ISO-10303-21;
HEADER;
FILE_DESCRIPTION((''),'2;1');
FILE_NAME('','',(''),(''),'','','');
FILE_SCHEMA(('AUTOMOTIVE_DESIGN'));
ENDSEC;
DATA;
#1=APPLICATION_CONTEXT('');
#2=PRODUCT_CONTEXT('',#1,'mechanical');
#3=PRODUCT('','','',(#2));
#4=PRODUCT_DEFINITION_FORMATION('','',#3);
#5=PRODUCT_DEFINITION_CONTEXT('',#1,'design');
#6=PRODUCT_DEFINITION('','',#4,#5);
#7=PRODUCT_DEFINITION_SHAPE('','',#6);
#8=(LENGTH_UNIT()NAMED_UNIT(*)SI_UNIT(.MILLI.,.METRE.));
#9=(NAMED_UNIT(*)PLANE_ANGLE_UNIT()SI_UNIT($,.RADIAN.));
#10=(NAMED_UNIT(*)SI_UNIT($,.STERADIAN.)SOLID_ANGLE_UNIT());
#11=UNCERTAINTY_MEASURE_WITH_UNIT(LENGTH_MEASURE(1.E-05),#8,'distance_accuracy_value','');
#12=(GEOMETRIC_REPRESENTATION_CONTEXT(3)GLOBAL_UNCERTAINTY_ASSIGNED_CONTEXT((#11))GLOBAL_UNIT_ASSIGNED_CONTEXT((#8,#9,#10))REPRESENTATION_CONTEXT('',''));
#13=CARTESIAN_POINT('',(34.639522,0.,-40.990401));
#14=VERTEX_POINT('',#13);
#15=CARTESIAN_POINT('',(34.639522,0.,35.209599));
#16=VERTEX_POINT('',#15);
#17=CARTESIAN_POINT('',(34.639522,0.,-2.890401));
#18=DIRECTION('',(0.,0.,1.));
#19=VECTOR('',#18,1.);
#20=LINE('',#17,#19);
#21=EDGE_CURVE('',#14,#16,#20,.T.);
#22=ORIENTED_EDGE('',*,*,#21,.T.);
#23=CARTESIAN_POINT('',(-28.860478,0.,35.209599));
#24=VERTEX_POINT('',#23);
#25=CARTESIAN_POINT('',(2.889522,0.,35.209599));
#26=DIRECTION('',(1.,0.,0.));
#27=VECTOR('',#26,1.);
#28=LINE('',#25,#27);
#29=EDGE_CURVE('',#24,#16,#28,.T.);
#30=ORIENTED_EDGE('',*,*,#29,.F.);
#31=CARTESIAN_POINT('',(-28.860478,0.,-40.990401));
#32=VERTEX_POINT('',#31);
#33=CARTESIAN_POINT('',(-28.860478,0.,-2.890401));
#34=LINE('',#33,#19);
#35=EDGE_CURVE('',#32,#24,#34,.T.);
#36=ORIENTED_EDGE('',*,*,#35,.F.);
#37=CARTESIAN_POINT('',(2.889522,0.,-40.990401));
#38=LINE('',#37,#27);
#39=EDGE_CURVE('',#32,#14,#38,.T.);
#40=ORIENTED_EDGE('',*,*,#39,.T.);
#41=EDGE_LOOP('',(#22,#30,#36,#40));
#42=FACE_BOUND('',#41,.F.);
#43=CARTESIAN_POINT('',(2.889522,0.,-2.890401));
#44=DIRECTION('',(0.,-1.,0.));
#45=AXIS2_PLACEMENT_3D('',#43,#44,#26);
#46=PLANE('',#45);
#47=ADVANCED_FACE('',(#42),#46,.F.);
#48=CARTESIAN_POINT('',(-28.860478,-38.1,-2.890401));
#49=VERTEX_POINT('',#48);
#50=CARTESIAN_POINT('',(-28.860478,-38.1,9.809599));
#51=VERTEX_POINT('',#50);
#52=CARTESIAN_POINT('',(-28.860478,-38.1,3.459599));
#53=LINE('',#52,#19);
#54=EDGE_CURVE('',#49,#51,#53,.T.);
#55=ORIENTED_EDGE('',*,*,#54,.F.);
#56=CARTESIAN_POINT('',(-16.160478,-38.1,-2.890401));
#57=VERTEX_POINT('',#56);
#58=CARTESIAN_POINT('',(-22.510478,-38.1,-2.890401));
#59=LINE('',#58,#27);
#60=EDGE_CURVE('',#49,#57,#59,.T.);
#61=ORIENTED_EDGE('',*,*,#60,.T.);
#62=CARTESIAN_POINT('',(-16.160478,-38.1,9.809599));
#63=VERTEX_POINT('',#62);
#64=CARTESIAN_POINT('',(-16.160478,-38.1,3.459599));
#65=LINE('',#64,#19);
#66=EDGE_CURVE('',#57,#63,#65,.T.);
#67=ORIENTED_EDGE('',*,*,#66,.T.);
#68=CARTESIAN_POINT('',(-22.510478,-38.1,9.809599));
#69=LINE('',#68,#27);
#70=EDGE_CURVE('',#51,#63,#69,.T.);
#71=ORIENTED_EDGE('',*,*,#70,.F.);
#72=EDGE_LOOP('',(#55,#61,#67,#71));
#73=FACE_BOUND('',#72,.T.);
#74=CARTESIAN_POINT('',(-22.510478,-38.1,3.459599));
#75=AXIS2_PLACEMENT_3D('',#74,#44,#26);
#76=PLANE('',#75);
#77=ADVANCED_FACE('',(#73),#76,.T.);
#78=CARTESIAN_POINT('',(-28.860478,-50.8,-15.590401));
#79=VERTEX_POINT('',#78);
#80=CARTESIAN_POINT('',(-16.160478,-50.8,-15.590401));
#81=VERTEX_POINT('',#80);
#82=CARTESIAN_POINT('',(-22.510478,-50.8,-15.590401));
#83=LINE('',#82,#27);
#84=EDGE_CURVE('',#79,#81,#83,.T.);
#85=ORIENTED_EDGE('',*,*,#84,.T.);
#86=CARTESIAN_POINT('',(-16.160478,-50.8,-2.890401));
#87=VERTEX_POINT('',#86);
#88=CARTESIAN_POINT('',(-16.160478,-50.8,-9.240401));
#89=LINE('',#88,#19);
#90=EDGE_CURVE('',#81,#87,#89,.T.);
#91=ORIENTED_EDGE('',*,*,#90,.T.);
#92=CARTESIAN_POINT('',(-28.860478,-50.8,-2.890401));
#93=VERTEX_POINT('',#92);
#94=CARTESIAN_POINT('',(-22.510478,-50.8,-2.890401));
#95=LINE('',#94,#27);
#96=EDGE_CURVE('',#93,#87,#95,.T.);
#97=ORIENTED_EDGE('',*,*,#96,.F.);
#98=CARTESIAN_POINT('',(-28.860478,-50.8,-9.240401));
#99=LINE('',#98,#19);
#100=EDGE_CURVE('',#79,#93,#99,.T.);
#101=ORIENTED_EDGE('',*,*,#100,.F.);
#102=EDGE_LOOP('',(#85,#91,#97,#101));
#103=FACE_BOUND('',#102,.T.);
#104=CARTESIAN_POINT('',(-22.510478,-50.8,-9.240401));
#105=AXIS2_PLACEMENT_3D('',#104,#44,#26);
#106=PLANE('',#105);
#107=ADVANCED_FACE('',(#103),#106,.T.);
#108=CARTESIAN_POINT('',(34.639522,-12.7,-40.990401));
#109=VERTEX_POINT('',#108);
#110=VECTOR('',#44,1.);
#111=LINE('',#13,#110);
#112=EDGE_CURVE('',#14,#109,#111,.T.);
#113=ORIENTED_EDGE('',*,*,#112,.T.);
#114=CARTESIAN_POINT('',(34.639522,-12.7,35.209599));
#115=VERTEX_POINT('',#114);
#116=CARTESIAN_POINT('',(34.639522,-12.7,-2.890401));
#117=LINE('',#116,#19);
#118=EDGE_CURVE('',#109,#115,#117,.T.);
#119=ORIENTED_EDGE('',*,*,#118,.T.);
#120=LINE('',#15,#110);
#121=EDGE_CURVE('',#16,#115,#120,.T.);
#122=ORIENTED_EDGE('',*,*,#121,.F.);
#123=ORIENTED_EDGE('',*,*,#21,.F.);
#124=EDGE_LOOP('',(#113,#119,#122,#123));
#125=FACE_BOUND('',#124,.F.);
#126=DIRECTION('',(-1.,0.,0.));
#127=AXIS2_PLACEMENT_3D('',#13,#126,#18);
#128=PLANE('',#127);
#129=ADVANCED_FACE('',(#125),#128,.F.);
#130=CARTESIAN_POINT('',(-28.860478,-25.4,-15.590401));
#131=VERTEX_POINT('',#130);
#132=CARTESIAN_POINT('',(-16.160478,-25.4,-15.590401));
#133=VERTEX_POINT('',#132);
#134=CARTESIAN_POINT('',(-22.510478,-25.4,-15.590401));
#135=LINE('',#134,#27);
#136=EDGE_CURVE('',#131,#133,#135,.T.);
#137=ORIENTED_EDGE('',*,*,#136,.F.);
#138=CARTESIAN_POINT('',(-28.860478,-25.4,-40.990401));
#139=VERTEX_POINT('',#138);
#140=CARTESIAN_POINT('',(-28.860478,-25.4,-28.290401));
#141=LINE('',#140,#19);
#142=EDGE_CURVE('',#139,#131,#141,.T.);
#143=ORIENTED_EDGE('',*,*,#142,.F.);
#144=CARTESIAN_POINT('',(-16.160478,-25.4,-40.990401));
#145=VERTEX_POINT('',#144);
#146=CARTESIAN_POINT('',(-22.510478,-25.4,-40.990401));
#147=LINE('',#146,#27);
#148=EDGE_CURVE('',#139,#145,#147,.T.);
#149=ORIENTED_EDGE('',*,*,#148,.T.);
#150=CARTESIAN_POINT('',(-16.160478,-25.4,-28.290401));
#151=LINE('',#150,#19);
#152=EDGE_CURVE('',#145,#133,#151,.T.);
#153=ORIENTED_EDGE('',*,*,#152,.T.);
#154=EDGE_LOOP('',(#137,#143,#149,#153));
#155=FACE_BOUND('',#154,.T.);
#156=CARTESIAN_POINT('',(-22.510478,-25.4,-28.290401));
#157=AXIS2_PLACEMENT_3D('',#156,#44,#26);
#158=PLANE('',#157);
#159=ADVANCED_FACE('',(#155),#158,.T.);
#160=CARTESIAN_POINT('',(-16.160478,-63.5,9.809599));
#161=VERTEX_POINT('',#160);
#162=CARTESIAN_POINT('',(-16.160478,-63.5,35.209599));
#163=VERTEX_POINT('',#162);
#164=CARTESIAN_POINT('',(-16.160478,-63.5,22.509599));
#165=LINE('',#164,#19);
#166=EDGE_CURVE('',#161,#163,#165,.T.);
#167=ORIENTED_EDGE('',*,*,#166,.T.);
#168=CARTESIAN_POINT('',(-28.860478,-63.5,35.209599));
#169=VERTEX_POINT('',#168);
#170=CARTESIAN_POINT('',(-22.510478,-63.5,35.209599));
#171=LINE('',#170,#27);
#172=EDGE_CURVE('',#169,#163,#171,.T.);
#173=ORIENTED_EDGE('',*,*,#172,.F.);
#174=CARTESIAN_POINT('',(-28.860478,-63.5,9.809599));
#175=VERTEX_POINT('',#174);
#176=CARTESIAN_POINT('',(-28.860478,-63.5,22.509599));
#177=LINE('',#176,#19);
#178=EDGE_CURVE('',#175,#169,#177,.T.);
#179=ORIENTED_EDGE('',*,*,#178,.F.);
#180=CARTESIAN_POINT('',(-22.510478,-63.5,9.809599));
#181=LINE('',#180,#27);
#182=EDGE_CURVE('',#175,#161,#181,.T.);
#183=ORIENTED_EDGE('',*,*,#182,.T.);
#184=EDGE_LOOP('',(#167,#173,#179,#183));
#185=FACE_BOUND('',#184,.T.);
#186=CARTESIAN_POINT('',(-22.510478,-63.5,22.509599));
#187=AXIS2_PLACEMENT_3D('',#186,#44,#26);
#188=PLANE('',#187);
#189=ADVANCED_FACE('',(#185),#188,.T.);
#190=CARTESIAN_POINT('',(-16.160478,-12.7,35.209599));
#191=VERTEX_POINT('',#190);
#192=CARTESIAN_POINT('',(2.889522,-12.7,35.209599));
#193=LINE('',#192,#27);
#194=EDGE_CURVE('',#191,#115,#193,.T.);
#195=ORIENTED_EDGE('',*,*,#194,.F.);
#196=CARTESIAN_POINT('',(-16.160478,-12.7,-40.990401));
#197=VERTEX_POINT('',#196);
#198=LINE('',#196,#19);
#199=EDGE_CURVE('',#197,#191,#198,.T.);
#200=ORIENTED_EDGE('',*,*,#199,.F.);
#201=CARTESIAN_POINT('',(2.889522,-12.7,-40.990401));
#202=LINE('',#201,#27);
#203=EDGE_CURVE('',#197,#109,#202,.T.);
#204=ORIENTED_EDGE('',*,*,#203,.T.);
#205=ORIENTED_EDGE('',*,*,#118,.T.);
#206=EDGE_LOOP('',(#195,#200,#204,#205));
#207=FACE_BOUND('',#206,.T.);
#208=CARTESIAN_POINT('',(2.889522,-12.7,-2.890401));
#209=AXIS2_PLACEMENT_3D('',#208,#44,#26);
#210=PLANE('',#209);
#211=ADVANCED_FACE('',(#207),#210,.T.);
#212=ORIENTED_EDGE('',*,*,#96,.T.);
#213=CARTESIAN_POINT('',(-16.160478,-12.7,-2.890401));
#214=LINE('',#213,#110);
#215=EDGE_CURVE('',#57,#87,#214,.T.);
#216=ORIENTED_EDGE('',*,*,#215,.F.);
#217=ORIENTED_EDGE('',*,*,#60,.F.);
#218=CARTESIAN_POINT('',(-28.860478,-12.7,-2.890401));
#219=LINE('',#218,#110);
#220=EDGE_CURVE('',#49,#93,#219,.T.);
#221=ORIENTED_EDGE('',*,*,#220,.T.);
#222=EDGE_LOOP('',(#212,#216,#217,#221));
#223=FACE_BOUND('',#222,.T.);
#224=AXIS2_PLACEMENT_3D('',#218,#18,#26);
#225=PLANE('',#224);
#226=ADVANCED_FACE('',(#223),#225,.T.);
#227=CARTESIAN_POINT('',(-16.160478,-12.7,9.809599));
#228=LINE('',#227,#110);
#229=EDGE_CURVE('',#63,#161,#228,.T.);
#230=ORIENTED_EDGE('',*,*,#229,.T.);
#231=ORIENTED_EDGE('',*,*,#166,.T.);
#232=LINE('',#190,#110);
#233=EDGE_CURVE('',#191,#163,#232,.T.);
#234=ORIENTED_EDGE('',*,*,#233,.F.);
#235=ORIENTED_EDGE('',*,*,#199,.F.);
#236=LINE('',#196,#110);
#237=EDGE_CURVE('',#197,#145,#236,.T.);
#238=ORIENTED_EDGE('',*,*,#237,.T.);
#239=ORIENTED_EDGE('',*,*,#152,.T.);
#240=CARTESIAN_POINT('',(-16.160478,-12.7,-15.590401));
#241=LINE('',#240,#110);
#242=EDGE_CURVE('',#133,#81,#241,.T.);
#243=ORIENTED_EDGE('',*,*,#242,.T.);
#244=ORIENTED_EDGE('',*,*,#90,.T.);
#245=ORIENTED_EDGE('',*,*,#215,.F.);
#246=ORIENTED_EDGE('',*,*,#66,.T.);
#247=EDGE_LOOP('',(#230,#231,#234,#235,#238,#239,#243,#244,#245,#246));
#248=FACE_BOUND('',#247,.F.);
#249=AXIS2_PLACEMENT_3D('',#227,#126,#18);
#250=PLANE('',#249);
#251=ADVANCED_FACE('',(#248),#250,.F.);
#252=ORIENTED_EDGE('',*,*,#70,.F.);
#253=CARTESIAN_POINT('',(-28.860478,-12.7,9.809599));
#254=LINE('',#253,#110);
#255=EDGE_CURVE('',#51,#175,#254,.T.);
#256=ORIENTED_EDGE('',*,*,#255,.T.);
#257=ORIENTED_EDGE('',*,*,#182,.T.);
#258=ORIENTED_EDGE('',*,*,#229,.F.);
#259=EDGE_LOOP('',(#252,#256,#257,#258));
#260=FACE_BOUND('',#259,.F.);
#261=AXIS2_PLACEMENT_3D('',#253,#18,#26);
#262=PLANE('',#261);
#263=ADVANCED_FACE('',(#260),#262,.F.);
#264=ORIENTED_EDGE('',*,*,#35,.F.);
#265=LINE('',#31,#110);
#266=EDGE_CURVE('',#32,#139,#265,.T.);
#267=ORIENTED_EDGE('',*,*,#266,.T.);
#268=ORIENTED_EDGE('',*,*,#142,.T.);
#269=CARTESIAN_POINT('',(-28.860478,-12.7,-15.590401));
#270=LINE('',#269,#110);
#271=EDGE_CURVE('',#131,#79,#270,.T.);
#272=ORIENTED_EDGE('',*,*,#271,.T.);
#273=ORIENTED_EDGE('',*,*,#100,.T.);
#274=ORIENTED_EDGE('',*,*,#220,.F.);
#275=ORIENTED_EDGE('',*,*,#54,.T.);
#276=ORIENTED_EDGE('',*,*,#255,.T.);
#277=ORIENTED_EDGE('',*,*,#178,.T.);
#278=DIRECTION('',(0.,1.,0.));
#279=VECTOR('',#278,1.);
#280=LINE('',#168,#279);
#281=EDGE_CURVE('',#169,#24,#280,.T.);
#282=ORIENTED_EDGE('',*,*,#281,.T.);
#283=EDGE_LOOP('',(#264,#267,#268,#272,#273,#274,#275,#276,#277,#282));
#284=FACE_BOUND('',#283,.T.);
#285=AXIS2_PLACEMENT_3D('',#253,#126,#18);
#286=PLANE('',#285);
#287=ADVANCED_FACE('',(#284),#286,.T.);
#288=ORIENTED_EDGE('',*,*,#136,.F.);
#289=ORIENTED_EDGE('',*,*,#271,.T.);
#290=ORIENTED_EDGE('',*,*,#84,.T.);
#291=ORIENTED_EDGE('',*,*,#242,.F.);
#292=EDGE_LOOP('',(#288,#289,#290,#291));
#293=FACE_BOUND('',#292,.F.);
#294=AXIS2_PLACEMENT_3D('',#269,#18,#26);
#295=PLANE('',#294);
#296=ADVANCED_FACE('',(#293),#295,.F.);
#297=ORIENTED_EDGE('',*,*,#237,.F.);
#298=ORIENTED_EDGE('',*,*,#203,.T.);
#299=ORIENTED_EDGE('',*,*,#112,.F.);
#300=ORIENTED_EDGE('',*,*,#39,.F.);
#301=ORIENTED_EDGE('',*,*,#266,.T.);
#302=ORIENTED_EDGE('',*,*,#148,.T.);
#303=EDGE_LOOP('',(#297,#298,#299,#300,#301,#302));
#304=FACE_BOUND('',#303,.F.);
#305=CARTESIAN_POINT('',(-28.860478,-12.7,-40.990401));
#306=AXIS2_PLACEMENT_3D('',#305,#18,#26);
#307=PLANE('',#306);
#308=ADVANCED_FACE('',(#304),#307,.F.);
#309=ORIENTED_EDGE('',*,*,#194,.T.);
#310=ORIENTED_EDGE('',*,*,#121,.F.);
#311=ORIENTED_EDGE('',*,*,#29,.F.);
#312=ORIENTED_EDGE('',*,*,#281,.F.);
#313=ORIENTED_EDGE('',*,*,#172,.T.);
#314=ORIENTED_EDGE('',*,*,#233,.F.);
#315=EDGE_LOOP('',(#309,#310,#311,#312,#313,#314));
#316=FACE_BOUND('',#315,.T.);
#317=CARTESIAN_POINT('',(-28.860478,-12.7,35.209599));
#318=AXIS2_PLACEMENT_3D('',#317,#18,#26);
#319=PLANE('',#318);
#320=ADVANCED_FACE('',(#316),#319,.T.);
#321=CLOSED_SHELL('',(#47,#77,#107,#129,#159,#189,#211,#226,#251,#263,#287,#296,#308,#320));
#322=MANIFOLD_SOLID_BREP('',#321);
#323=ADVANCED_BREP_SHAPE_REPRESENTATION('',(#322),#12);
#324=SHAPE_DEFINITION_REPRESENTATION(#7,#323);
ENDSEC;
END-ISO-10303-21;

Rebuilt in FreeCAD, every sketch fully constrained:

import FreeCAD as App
import Part
import Sketcher

V = App.Vector
Q = App.Units.Quantity

doc = App.newDocument("Part")
body = doc.addObject("PartDesign::Body", "Body")

sketch1 = body.newObject("Sketcher::SketchObject", "Sketch")
sketch1.AttachmentSupport = (doc.getObject("XZ_Plane"), [""])
sketch1.MapMode = "FlatFace"
sketch1.addGeometry([
    Part.LineSegment(V(-29, 35, 0), V(-29, -41, 0)),
    Part.LineSegment(V(-29, -41, 0), V(35, -41, 0)),
    Part.LineSegment(V(35, -41, 0), V(35, 35, 0)),
    Part.LineSegment(V(35, 35, 0), V(-29, 35, 0)),
], False)
sketch1.addConstraint([
    Sketcher.Constraint("Coincident", 0, 2, 1, 1),
    Sketcher.Constraint("Coincident", 1, 2, 2, 1),
    Sketcher.Constraint("Coincident", 2, 2, 3, 1),
    Sketcher.Constraint("Coincident", 3, 2, 0, 1),
    Sketcher.Constraint("Vertical", 0),
    Sketcher.Constraint("Horizontal", 1),
    Sketcher.Constraint("Vertical", 2),
    Sketcher.Constraint("Horizontal", 3),
    Sketcher.Constraint("DistanceY", 0, 2, 0, 1, Q("3 in")),
    Sketcher.Constraint("DistanceX", 1, 1, 1, 2, Q("2.5 in")),
    Sketcher.Constraint("DistanceY", 0, 2, -1, 1, 40.990401),
    Sketcher.Constraint("DistanceX", 0, 2, -1, 1, 28.860478),
])
pad1 = body.newObject("PartDesign::Pad", "Pad")
pad1.Profile = sketch1
pad1.Length = Q("0.5 in")

sketch2 = body.newObject("Sketcher::SketchObject", "Sketch001")
sketch2.AttachmentSupport = (doc.getObject("XZ_Plane"), [""])
sketch2.MapMode = "FlatFace"
sketch2.AttachmentOffset = App.Placement(V(0, 0, 0.5 * 25.4), App.Rotation())
sketch2.addGeometry([
    Part.LineSegment(V(-29, -16, 0), V(-29, -41, 0)),
    Part.LineSegment(V(-29, -41, 0), V(-16, -41, 0)),
    Part.LineSegment(V(-16, -41, 0), V(-16, -16, 0)),
    Part.LineSegment(V(-16, -16, 0), V(-29, -16, 0)),
], False)
sketch2.addConstraint([
    Sketcher.Constraint("Coincident", 0, 2, 1, 1),
    Sketcher.Constraint("Coincident", 1, 2, 2, 1),
    Sketcher.Constraint("Coincident", 2, 2, 3, 1),
    Sketcher.Constraint("Coincident", 3, 2, 0, 1),
    Sketcher.Constraint("Vertical", 0),
    Sketcher.Constraint("Horizontal", 1),
    Sketcher.Constraint("Vertical", 2),
    Sketcher.Constraint("Horizontal", 3),
    Sketcher.Constraint("DistanceY", 0, 2, 0, 1, Q("1 in")),
    Sketcher.Constraint("DistanceX", 1, 1, 1, 2, Q("0.5 in")),
    Sketcher.Constraint("DistanceY", 0, 2, -1, 1, 40.990401),
    Sketcher.Constraint("DistanceX", 0, 2, -1, 1, 28.860478),
])
pad2 = body.newObject("PartDesign::Pad", "Pad001")
pad2.Profile = sketch2
pad2.Length = Q("0.5 in")

sketch3 = body.newObject("Sketcher::SketchObject", "Sketch002")
sketch3.AttachmentSupport = (doc.getObject("XZ_Plane"), [""])
sketch3.MapMode = "FlatFace"
sketch3.AttachmentOffset = App.Placement(V(0, 0, 0.5 * 25.4), App.Rotation())
sketch3.addGeometry([
    Part.LineSegment(V(-29, -3, 0), V(-29, -16, 0)),
    Part.LineSegment(V(-29, -16, 0), V(-16, -16, 0)),
    Part.LineSegment(V(-16, -16, 0), V(-16, -3, 0)),
    Part.LineSegment(V(-16, -3, 0), V(-29, -3, 0)),
], False)
sketch3.addConstraint([
    Sketcher.Constraint("Coincident", 0, 2, 1, 1),
    Sketcher.Constraint("Coincident", 1, 2, 2, 1),
    Sketcher.Constraint("Coincident", 2, 2, 3, 1),
    Sketcher.Constraint("Coincident", 3, 2, 0, 1),
    Sketcher.Constraint("Vertical", 0),
    Sketcher.Constraint("Horizontal", 1),
    Sketcher.Constraint("Vertical", 2),
    Sketcher.Constraint("Horizontal", 3),
    Sketcher.Constraint("Equal", 3, 0),
    Sketcher.Constraint("DistanceX", 1, 1, 1, 2, Q("0.5 in")),
    Sketcher.Constraint("DistanceY", 0, 2, -1, 1, 15.590401),
    Sketcher.Constraint("DistanceX", 0, 2, -1, 1, 28.860478),
])
pad3 = body.newObject("PartDesign::Pad", "Pad002")
pad3.Profile = sketch3
pad3.Length = Q("1.5 in")

sketch4 = body.newObject("Sketcher::SketchObject", "Sketch003")
sketch4.AttachmentSupport = (doc.getObject("XZ_Plane"), [""])
sketch4.MapMode = "FlatFace"
sketch4.AttachmentOffset = App.Placement(V(0, 0, 0.5 * 25.4), App.Rotation())
sketch4.addGeometry([
    Part.LineSegment(V(-29, 10, 0), V(-29, -3, 0)),
    Part.LineSegment(V(-29, -3, 0), V(-16, -3, 0)),
    Part.LineSegment(V(-16, -3, 0), V(-16, 10, 0)),
    Part.LineSegment(V(-16, 10, 0), V(-29, 10, 0)),
], False)
sketch4.addConstraint([
    Sketcher.Constraint("Coincident", 0, 2, 1, 1),
    Sketcher.Constraint("Coincident", 1, 2, 2, 1),
    Sketcher.Constraint("Coincident", 2, 2, 3, 1),
    Sketcher.Constraint("Coincident", 3, 2, 0, 1),
    Sketcher.Constraint("Vertical", 0),
    Sketcher.Constraint("Horizontal", 1),
    Sketcher.Constraint("Vertical", 2),
    Sketcher.Constraint("Horizontal", 3),
    Sketcher.Constraint("Equal", 3, 0),
    Sketcher.Constraint("DistanceX", 1, 1, 1, 2, Q("0.5 in")),
    Sketcher.Constraint("DistanceY", 0, 2, -1, 1, 2.890401),
    Sketcher.Constraint("DistanceX", 0, 2, -1, 1, 28.860478),
])
pad4 = body.newObject("PartDesign::Pad", "Pad003")
pad4.Profile = sketch4
pad4.Length = Q("1 in")

sketch5 = body.newObject("Sketcher::SketchObject", "Sketch004")
sketch5.AttachmentSupport = (doc.getObject("XZ_Plane"), [""])
sketch5.MapMode = "FlatFace"
sketch5.AttachmentOffset = App.Placement(V(0, 0, 0.5 * 25.4), App.Rotation())
sketch5.addGeometry([
    Part.LineSegment(V(-29, 35, 0), V(-29, 10, 0)),
    Part.LineSegment(V(-29, 10, 0), V(-16, 10, 0)),
    Part.LineSegment(V(-16, 10, 0), V(-16, 35, 0)),
    Part.LineSegment(V(-16, 35, 0), V(-29, 35, 0)),
], False)
sketch5.addConstraint([
    Sketcher.Constraint("Coincident", 0, 2, 1, 1),
    Sketcher.Constraint("Coincident", 1, 2, 2, 1),
    Sketcher.Constraint("Coincident", 2, 2, 3, 1),
    Sketcher.Constraint("Coincident", 3, 2, 0, 1),
    Sketcher.Constraint("Vertical", 0),
    Sketcher.Constraint("Horizontal", 1),
    Sketcher.Constraint("Vertical", 2),
    Sketcher.Constraint("Horizontal", 3),
    Sketcher.Constraint("DistanceY", 0, 2, 0, 1, Q("1 in")),
    Sketcher.Constraint("DistanceX", 1, 1, 1, 2, Q("0.5 in")),
    Sketcher.Constraint("DistanceY", -1, 1, 0, 2, 9.809599),
    Sketcher.Constraint("DistanceX", 0, 2, -1, 1, 28.860478),
])
pad5 = body.newObject("PartDesign::Pad", "Pad004")
pad5.Profile = sketch5
pad5.Length = Q("2 in")

doc.recompute()
